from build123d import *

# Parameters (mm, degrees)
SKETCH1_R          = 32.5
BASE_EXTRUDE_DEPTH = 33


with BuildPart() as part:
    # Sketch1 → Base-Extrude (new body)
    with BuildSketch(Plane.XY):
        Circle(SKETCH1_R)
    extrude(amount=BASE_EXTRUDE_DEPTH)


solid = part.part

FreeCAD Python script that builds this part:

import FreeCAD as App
import Part
import Sketcher
from FreeCAD import Vector
Q = App.Units.Quantity

doc = App.newDocument("Part")
body = doc.addObject("PartDesign::Body", "Body")

# Sketch on XY plane
sketch1 = doc.addObject("Sketcher::SketchObject", "Sketch")
body.addObject(sketch1)
sketch1.AttachmentSupport = (doc.XY_Plane, [""])
sketch1.MapMode = "FlatFace"
sketch1.addGeometry(Part.Circle(Vector(0, 0, 0), Vector(0, 0, 1), 32), False)
sketch1.addConstraint(Sketcher.Constraint("Coincident", 0, 3, -1, 1))
sketch1.addConstraint(Sketcher.Constraint("Diameter", 0, Q("65 mm")))
pad1 = doc.addObject("PartDesign::Pad", "Pad")
body.addObject(pad1)
pad1.Profile = sketch1
pad1.Length = 33

doc.recompute()
